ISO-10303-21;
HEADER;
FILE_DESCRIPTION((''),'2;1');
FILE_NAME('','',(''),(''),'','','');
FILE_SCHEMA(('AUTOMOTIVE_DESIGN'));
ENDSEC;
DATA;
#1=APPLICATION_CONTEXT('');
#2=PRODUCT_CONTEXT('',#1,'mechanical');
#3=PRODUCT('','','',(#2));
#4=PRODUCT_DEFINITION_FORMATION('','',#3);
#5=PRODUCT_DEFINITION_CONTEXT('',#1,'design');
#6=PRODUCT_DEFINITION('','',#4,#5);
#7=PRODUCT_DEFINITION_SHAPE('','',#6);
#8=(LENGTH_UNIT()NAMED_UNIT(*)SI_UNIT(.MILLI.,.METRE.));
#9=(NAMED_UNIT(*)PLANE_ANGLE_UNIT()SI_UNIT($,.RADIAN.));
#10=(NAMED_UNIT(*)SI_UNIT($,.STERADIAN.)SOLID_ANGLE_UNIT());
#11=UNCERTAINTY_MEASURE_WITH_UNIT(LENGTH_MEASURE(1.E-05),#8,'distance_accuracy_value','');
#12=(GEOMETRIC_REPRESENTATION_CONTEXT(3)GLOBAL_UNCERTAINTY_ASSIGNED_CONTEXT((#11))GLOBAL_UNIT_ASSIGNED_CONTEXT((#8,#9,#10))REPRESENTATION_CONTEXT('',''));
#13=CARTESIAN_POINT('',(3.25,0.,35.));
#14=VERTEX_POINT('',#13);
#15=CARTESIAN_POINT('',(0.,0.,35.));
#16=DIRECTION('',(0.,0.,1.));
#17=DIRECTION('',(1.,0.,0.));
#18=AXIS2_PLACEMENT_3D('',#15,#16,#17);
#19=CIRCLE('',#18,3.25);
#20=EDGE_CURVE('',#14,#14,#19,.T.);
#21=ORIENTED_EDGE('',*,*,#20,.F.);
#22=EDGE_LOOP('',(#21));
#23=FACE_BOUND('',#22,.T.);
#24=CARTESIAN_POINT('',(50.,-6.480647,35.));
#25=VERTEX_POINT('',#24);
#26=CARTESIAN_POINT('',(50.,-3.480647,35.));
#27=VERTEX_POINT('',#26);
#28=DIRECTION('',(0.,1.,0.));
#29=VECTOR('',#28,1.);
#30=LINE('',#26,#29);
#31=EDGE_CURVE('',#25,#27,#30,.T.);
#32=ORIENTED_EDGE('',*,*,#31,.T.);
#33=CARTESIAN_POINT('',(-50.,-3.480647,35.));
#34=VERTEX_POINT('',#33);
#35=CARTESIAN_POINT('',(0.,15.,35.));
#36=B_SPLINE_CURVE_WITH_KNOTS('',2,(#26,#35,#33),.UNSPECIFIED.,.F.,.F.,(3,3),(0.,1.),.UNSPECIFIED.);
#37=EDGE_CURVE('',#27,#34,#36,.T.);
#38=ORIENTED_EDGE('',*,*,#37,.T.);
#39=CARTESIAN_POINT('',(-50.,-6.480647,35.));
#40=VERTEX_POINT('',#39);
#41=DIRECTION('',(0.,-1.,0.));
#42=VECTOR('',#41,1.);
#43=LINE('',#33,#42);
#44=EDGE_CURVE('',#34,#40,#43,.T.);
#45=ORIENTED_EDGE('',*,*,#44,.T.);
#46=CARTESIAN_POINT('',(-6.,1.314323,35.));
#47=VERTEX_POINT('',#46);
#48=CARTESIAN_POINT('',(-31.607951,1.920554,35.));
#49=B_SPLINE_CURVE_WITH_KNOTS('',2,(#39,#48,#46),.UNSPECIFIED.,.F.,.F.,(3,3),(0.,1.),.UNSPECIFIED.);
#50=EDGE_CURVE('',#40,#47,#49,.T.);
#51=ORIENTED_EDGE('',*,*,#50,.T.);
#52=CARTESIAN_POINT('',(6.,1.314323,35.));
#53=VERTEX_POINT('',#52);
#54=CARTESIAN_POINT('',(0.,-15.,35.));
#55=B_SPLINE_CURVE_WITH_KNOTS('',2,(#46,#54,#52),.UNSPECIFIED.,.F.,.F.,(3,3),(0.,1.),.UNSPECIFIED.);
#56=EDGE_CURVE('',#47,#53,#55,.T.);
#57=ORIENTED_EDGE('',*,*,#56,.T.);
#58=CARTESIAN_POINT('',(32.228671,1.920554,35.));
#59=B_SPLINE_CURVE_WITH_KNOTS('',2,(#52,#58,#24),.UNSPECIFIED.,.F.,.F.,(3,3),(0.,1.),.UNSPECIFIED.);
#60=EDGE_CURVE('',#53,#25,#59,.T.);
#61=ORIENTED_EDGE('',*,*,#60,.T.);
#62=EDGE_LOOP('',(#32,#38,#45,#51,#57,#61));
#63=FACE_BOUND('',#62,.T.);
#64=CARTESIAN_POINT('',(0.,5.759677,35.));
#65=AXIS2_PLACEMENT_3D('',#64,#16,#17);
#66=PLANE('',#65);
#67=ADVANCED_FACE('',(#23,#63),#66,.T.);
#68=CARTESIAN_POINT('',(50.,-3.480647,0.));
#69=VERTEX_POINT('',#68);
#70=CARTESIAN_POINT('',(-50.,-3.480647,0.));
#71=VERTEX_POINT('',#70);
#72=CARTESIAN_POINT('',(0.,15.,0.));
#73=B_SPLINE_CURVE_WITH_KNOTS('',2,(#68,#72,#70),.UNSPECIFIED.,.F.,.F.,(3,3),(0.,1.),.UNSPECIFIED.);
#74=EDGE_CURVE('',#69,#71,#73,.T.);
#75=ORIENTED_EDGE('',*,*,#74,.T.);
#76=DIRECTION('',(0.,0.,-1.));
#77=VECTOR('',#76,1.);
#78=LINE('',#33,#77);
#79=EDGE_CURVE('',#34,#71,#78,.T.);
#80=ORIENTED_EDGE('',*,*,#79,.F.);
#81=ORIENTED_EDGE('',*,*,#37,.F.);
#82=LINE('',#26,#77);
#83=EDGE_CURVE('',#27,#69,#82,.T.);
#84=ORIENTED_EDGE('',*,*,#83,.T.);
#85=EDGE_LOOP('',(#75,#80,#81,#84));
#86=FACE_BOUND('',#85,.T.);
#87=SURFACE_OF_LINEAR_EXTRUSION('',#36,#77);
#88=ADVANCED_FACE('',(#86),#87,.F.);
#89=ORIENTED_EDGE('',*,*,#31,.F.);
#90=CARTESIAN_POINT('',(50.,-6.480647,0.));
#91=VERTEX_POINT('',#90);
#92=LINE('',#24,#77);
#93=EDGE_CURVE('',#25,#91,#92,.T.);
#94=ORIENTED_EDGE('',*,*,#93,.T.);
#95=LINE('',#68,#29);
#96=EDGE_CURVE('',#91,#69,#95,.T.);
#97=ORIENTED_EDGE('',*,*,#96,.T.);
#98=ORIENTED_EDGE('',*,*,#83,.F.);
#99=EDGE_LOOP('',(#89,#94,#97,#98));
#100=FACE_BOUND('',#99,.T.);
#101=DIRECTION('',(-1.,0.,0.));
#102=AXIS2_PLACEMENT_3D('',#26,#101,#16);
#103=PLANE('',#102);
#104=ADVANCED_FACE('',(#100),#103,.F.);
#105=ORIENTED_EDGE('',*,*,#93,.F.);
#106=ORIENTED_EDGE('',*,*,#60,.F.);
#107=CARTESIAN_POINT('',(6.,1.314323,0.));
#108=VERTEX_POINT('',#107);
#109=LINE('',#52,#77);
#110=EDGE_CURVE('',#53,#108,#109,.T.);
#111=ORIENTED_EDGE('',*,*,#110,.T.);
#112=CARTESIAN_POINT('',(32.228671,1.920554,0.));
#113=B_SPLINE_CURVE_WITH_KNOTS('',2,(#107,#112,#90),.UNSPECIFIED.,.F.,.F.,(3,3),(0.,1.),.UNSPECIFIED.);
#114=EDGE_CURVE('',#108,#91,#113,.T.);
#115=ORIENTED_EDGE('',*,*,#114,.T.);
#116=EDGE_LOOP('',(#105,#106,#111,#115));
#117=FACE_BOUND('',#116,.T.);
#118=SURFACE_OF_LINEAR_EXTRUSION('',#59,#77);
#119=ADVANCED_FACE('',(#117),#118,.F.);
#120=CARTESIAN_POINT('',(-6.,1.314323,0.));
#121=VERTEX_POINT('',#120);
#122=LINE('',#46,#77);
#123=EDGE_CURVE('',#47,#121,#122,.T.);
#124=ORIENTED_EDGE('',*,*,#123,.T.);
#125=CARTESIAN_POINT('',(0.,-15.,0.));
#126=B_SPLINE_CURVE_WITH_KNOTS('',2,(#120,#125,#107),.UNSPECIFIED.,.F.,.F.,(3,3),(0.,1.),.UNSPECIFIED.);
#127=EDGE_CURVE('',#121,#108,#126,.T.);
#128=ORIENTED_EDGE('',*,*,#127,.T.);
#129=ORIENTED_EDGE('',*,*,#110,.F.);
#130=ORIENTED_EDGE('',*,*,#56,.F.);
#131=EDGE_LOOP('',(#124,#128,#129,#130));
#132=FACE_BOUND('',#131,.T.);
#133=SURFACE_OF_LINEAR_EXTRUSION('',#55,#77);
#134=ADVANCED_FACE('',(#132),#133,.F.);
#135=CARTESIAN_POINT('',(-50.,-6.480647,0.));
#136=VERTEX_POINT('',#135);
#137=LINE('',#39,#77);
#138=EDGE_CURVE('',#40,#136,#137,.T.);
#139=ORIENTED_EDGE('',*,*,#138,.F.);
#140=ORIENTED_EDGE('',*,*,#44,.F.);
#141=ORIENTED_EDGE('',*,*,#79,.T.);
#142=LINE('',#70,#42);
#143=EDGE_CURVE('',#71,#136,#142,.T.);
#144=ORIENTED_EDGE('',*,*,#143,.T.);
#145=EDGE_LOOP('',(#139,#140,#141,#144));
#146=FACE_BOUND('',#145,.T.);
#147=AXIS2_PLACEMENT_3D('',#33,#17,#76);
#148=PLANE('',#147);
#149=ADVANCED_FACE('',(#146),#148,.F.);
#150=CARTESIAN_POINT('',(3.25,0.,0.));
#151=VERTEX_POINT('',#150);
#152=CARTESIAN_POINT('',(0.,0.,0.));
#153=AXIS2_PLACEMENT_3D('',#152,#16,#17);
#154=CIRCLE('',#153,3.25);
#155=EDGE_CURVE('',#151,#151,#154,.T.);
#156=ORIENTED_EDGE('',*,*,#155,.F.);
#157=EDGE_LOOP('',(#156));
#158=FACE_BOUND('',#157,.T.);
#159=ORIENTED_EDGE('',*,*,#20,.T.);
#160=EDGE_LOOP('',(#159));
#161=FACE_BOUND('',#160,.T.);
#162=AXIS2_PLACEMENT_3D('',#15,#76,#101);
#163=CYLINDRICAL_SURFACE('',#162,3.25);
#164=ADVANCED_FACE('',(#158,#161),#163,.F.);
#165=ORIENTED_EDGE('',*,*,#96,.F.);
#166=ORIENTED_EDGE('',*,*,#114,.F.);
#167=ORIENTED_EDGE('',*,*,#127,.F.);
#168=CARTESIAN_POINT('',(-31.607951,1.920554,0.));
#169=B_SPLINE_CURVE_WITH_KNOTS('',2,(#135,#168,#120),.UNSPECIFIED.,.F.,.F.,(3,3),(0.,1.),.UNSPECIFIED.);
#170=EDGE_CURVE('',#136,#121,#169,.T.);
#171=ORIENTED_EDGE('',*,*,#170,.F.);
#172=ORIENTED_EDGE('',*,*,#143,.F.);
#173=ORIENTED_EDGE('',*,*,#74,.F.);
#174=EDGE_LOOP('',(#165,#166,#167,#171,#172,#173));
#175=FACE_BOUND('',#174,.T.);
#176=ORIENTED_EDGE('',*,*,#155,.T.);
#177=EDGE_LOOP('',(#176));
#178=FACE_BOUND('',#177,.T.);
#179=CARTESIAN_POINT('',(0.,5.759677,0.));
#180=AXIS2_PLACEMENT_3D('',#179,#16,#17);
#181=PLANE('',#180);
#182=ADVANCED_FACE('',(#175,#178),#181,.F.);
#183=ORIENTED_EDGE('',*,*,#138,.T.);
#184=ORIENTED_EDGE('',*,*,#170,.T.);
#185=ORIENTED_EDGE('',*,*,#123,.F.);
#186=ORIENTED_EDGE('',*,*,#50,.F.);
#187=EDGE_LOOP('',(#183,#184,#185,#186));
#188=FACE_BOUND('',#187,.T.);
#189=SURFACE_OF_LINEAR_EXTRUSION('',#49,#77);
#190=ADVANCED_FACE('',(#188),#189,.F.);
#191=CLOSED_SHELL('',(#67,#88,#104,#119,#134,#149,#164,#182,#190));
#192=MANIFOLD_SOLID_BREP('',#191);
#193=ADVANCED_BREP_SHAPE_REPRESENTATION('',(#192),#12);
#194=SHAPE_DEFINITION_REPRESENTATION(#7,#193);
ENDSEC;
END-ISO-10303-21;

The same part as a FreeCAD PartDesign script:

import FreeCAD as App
import Part
import Sketcher
from FreeCAD import Vector
Q = App.Units.Quantity

doc = App.newDocument("Part")
body = doc.addObject("PartDesign::Body", "Body")

# Sketch on XY plane
sketch1 = body.newObject("Sketcher::SketchObject", "Sketch")
sketch1.AttachmentSupport = (doc.getObject("XY_Plane"), [""])
sketch1.MapMode = "FlatFace"
sketch1.addGeometry([
    Part.LineSegment(Vector(-50, -3.480647, 0), Vector(-50, -6.480647, 0)),  # 0
    Part.BSplineCurve([Vector(-6, 1.314323, 0), Vector(-31.607951, 1.920554, 0), Vector(-50, -6.480647, 0)], [3, 3], [0, 1], False, 2, [1, 1, 1], False),  # 1
    Part.BSplineCurve([Vector(-6, 1.314323, 0), Vector(0, -15, 0), Vector(6, 1.314323, 0)], [3, 3], [0, 1], False, 2, [1, 1, 1], False),  # 2
    Part.BSplineCurve([Vector(6, 1.314323, 0), Vector(32.228671, 1.920554, 0), Vector(50, -6.480647, 0)], [3, 3], [0, 1], False, 2, [1, 1, 1], False),  # 3
    Part.LineSegment(Vector(50, -6.480647, 0), Vector(50, -3.480647, 0)),  # 4
    Part.BSplineCurve([Vector(-50, -3.480647, 0), Vector(0, 15, 0), Vector(50, -3.480647, 0)], [3, 3], [0, 1], False, 2, [1, 1, 1], False),  # 5
    Part.Circle(Vector(0, 0, 0), Vector(0, 0, 1), 3.25),  # 6
], False)
sketch1.addConstraint([
    Sketcher.Constraint("Block", 1),
    Sketcher.Constraint("Block", 2),
    Sketcher.Constraint("Block", 3),
    Sketcher.Constraint("Block", 5),
    Sketcher.Constraint("Coincident", 0, 2, 1, 2),
    Sketcher.Constraint("Coincident", 3, 2, 4, 1),
    Sketcher.Constraint("Coincident", 4, 2, 5, 2),
    Sketcher.Constraint("Coincident", 5, 1, 0, 1),
    Sketcher.Constraint("Coincident", 6, 3, -1, 1),
    Sketcher.Constraint("Diameter", 6, Q("6.5 mm")),
])
pad1 = body.newObject("PartDesign::Pad", "Pad")
pad1.Profile = sketch1
pad1.Length = 35

doc.recompute()
